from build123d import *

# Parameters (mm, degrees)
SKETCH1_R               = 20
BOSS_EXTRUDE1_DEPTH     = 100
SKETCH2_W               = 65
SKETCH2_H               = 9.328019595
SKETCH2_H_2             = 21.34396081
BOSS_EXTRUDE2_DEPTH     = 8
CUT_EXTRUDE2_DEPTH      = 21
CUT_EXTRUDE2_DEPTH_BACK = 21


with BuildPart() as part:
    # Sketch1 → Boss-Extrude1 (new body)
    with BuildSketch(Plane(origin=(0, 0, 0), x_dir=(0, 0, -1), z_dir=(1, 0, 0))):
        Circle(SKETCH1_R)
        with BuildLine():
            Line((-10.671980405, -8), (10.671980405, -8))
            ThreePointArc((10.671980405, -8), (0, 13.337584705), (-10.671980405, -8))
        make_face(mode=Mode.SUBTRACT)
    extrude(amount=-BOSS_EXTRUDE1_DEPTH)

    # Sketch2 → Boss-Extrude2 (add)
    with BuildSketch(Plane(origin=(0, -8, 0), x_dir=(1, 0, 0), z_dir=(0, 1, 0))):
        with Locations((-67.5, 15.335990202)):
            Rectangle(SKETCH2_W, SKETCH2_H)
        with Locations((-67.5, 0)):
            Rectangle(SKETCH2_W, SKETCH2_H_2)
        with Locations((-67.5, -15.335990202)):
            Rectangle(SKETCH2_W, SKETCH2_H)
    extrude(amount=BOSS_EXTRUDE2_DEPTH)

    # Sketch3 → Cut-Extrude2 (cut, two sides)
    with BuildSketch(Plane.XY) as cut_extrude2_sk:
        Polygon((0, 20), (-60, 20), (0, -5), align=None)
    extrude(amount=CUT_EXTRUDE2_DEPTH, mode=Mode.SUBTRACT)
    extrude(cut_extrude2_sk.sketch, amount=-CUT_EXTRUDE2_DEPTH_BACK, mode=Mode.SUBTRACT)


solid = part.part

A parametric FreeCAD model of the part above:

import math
import FreeCAD as App
import Part
import Sketcher


def add_polygon(sketch, points):
    """Adds a closed chain of lines whose ends are joined by coincident constraints."""
    first, n = sketch.GeometryCount, len(points)
    for a, b in zip(points, points[1:] + points[:1]):
        sketch.addGeometry(Part.LineSegment(App.Vector(*a, 0), App.Vector(*b, 0)), False)
    for i in range(n):
        sketch.addConstraint(Sketcher.Constraint("Coincident", first + i, 2, first + (i + 1) % n, 1))

doc = App.newDocument("Part")
body = doc.addObject("PartDesign::Body", "Body")

sketch1 = body.newObject("Sketcher::SketchObject", "Sketch")
sketch1.AttachmentSupport = (doc.getObject("YZ_Plane"), [""])
sketch1.MapMode = "FlatFace"
sketch1.addGeometry(Part.Circle(App.Vector(0, 0, 0), App.Vector(0, 0, 1), 20), False)
sketch1.addGeometry(Part.LineSegment(App.Vector(-8, -11, 0), App.Vector(-8, 11, 0)), False)
sketch1.addGeometry(Part.ArcOfCircle(Part.Circle(App.Vector(0, 0, 0), App.Vector(0, 0, 1), 13), math.radians(-127), math.radians(127)), False)
sketch1.addConstraint(Sketcher.Constraint("Coincident", 1, 1, 2, 1))
sketch1.addConstraint(Sketcher.Constraint("Coincident", 2, 2, 1, 2))
sketch1.addConstraint(Sketcher.Constraint("Vertical", 1))
sketch1.addConstraint(Sketcher.Constraint("Coincident", 0, 3, -1, 1))
sketch1.addConstraint(Sketcher.Constraint("Coincident", 2, 3, -1, 1))
sketch1.addConstraint(Sketcher.Constraint("Diameter", 0, 40.0))
sketch1.addConstraint(Sketcher.Constraint("DistanceX", 1, 1, -1, 1, 8.0))
sketch1.addConstraint(Sketcher.Constraint("Radius", 2, 13.337585))
pad1 = body.newObject("PartDesign::Pad", "Pad")
pad1.Profile = sketch1
pad1.Length = 100
pad1.Reversed = True

sketch2 = body.newObject("Sketcher::SketchObject", "Sketch001")
sketch2.AttachmentSupport = (doc.getObject("XZ_Plane"), [""])
sketch2.MapMode = "FlatFace"
sketch2.AttachmentOffset = App.Placement(App.Vector(0, 0, 8), App.Rotation())
add_polygon(sketch2, [(-100, -20), (-100, 20), (-35, 20), (-35, -20)])
sketch2.addConstraint(Sketcher.Constraint("Vertical", 0))
sketch2.addConstraint(Sketcher.Constraint("Horizontal", 1))
sketch2.addConstraint(Sketcher.Constraint("Vertical", 2))
sketch2.addConstraint(Sketcher.Constraint("Horizontal", 3))
sketch2.addConstraint(Sketcher.Constraint("DistanceX", 1, 1, 1, 2, 65.0))
sketch2.addConstraint(Sketcher.Constraint("DistanceY", 0, 1, 0, 2, 40.0))
sketch2.addConstraint(Sketcher.Constraint("DistanceX", 0, 2, -1, 1, 100.0))
sketch2.addConstraint(Sketcher.Constraint("DistanceY", -1, 1, 0, 2, 20.0))
pad2 = body.newObject("PartDesign::Pad", "Pad001")
pad2.Profile = sketch2
pad2.Length = 8
pad2.Reversed = True

sketch3 = body.newObject("Sketcher::SketchObject", "Sketch002")
sketch3.AttachmentSupport = (doc.getObject("XY_Plane"), [""])
sketch3.MapMode = "FlatFace"
add_polygon(sketch3, [(0, 20), (-60, 20), (0, -5)])
sketch3.addConstraint(Sketcher.Constraint("Horizontal", 0))
sketch3.addConstraint(Sketcher.Constraint("Vertical", 2))
sketch3.addConstraint(Sketcher.Constraint("PointOnObject", 1, 2, -2))
sketch3.addConstraint(Sketcher.Constraint("DistanceX", 0, 2, 0, 1, 60.0))
sketch3.addConstraint(Sketcher.Constraint("DistanceY", 2, 1, 2, 2, 25.0))
sketch3.addConstraint(Sketcher.Constraint("DistanceY", -1, 1, 0, 2, 20.0))
pocket1 = body.newObject("PartDesign::Pocket", "Pocket")
pocket1.Profile = sketch3
pocket1.Type = "ThroughAll"
pocket1.Midplane = True

doc.recompute()
